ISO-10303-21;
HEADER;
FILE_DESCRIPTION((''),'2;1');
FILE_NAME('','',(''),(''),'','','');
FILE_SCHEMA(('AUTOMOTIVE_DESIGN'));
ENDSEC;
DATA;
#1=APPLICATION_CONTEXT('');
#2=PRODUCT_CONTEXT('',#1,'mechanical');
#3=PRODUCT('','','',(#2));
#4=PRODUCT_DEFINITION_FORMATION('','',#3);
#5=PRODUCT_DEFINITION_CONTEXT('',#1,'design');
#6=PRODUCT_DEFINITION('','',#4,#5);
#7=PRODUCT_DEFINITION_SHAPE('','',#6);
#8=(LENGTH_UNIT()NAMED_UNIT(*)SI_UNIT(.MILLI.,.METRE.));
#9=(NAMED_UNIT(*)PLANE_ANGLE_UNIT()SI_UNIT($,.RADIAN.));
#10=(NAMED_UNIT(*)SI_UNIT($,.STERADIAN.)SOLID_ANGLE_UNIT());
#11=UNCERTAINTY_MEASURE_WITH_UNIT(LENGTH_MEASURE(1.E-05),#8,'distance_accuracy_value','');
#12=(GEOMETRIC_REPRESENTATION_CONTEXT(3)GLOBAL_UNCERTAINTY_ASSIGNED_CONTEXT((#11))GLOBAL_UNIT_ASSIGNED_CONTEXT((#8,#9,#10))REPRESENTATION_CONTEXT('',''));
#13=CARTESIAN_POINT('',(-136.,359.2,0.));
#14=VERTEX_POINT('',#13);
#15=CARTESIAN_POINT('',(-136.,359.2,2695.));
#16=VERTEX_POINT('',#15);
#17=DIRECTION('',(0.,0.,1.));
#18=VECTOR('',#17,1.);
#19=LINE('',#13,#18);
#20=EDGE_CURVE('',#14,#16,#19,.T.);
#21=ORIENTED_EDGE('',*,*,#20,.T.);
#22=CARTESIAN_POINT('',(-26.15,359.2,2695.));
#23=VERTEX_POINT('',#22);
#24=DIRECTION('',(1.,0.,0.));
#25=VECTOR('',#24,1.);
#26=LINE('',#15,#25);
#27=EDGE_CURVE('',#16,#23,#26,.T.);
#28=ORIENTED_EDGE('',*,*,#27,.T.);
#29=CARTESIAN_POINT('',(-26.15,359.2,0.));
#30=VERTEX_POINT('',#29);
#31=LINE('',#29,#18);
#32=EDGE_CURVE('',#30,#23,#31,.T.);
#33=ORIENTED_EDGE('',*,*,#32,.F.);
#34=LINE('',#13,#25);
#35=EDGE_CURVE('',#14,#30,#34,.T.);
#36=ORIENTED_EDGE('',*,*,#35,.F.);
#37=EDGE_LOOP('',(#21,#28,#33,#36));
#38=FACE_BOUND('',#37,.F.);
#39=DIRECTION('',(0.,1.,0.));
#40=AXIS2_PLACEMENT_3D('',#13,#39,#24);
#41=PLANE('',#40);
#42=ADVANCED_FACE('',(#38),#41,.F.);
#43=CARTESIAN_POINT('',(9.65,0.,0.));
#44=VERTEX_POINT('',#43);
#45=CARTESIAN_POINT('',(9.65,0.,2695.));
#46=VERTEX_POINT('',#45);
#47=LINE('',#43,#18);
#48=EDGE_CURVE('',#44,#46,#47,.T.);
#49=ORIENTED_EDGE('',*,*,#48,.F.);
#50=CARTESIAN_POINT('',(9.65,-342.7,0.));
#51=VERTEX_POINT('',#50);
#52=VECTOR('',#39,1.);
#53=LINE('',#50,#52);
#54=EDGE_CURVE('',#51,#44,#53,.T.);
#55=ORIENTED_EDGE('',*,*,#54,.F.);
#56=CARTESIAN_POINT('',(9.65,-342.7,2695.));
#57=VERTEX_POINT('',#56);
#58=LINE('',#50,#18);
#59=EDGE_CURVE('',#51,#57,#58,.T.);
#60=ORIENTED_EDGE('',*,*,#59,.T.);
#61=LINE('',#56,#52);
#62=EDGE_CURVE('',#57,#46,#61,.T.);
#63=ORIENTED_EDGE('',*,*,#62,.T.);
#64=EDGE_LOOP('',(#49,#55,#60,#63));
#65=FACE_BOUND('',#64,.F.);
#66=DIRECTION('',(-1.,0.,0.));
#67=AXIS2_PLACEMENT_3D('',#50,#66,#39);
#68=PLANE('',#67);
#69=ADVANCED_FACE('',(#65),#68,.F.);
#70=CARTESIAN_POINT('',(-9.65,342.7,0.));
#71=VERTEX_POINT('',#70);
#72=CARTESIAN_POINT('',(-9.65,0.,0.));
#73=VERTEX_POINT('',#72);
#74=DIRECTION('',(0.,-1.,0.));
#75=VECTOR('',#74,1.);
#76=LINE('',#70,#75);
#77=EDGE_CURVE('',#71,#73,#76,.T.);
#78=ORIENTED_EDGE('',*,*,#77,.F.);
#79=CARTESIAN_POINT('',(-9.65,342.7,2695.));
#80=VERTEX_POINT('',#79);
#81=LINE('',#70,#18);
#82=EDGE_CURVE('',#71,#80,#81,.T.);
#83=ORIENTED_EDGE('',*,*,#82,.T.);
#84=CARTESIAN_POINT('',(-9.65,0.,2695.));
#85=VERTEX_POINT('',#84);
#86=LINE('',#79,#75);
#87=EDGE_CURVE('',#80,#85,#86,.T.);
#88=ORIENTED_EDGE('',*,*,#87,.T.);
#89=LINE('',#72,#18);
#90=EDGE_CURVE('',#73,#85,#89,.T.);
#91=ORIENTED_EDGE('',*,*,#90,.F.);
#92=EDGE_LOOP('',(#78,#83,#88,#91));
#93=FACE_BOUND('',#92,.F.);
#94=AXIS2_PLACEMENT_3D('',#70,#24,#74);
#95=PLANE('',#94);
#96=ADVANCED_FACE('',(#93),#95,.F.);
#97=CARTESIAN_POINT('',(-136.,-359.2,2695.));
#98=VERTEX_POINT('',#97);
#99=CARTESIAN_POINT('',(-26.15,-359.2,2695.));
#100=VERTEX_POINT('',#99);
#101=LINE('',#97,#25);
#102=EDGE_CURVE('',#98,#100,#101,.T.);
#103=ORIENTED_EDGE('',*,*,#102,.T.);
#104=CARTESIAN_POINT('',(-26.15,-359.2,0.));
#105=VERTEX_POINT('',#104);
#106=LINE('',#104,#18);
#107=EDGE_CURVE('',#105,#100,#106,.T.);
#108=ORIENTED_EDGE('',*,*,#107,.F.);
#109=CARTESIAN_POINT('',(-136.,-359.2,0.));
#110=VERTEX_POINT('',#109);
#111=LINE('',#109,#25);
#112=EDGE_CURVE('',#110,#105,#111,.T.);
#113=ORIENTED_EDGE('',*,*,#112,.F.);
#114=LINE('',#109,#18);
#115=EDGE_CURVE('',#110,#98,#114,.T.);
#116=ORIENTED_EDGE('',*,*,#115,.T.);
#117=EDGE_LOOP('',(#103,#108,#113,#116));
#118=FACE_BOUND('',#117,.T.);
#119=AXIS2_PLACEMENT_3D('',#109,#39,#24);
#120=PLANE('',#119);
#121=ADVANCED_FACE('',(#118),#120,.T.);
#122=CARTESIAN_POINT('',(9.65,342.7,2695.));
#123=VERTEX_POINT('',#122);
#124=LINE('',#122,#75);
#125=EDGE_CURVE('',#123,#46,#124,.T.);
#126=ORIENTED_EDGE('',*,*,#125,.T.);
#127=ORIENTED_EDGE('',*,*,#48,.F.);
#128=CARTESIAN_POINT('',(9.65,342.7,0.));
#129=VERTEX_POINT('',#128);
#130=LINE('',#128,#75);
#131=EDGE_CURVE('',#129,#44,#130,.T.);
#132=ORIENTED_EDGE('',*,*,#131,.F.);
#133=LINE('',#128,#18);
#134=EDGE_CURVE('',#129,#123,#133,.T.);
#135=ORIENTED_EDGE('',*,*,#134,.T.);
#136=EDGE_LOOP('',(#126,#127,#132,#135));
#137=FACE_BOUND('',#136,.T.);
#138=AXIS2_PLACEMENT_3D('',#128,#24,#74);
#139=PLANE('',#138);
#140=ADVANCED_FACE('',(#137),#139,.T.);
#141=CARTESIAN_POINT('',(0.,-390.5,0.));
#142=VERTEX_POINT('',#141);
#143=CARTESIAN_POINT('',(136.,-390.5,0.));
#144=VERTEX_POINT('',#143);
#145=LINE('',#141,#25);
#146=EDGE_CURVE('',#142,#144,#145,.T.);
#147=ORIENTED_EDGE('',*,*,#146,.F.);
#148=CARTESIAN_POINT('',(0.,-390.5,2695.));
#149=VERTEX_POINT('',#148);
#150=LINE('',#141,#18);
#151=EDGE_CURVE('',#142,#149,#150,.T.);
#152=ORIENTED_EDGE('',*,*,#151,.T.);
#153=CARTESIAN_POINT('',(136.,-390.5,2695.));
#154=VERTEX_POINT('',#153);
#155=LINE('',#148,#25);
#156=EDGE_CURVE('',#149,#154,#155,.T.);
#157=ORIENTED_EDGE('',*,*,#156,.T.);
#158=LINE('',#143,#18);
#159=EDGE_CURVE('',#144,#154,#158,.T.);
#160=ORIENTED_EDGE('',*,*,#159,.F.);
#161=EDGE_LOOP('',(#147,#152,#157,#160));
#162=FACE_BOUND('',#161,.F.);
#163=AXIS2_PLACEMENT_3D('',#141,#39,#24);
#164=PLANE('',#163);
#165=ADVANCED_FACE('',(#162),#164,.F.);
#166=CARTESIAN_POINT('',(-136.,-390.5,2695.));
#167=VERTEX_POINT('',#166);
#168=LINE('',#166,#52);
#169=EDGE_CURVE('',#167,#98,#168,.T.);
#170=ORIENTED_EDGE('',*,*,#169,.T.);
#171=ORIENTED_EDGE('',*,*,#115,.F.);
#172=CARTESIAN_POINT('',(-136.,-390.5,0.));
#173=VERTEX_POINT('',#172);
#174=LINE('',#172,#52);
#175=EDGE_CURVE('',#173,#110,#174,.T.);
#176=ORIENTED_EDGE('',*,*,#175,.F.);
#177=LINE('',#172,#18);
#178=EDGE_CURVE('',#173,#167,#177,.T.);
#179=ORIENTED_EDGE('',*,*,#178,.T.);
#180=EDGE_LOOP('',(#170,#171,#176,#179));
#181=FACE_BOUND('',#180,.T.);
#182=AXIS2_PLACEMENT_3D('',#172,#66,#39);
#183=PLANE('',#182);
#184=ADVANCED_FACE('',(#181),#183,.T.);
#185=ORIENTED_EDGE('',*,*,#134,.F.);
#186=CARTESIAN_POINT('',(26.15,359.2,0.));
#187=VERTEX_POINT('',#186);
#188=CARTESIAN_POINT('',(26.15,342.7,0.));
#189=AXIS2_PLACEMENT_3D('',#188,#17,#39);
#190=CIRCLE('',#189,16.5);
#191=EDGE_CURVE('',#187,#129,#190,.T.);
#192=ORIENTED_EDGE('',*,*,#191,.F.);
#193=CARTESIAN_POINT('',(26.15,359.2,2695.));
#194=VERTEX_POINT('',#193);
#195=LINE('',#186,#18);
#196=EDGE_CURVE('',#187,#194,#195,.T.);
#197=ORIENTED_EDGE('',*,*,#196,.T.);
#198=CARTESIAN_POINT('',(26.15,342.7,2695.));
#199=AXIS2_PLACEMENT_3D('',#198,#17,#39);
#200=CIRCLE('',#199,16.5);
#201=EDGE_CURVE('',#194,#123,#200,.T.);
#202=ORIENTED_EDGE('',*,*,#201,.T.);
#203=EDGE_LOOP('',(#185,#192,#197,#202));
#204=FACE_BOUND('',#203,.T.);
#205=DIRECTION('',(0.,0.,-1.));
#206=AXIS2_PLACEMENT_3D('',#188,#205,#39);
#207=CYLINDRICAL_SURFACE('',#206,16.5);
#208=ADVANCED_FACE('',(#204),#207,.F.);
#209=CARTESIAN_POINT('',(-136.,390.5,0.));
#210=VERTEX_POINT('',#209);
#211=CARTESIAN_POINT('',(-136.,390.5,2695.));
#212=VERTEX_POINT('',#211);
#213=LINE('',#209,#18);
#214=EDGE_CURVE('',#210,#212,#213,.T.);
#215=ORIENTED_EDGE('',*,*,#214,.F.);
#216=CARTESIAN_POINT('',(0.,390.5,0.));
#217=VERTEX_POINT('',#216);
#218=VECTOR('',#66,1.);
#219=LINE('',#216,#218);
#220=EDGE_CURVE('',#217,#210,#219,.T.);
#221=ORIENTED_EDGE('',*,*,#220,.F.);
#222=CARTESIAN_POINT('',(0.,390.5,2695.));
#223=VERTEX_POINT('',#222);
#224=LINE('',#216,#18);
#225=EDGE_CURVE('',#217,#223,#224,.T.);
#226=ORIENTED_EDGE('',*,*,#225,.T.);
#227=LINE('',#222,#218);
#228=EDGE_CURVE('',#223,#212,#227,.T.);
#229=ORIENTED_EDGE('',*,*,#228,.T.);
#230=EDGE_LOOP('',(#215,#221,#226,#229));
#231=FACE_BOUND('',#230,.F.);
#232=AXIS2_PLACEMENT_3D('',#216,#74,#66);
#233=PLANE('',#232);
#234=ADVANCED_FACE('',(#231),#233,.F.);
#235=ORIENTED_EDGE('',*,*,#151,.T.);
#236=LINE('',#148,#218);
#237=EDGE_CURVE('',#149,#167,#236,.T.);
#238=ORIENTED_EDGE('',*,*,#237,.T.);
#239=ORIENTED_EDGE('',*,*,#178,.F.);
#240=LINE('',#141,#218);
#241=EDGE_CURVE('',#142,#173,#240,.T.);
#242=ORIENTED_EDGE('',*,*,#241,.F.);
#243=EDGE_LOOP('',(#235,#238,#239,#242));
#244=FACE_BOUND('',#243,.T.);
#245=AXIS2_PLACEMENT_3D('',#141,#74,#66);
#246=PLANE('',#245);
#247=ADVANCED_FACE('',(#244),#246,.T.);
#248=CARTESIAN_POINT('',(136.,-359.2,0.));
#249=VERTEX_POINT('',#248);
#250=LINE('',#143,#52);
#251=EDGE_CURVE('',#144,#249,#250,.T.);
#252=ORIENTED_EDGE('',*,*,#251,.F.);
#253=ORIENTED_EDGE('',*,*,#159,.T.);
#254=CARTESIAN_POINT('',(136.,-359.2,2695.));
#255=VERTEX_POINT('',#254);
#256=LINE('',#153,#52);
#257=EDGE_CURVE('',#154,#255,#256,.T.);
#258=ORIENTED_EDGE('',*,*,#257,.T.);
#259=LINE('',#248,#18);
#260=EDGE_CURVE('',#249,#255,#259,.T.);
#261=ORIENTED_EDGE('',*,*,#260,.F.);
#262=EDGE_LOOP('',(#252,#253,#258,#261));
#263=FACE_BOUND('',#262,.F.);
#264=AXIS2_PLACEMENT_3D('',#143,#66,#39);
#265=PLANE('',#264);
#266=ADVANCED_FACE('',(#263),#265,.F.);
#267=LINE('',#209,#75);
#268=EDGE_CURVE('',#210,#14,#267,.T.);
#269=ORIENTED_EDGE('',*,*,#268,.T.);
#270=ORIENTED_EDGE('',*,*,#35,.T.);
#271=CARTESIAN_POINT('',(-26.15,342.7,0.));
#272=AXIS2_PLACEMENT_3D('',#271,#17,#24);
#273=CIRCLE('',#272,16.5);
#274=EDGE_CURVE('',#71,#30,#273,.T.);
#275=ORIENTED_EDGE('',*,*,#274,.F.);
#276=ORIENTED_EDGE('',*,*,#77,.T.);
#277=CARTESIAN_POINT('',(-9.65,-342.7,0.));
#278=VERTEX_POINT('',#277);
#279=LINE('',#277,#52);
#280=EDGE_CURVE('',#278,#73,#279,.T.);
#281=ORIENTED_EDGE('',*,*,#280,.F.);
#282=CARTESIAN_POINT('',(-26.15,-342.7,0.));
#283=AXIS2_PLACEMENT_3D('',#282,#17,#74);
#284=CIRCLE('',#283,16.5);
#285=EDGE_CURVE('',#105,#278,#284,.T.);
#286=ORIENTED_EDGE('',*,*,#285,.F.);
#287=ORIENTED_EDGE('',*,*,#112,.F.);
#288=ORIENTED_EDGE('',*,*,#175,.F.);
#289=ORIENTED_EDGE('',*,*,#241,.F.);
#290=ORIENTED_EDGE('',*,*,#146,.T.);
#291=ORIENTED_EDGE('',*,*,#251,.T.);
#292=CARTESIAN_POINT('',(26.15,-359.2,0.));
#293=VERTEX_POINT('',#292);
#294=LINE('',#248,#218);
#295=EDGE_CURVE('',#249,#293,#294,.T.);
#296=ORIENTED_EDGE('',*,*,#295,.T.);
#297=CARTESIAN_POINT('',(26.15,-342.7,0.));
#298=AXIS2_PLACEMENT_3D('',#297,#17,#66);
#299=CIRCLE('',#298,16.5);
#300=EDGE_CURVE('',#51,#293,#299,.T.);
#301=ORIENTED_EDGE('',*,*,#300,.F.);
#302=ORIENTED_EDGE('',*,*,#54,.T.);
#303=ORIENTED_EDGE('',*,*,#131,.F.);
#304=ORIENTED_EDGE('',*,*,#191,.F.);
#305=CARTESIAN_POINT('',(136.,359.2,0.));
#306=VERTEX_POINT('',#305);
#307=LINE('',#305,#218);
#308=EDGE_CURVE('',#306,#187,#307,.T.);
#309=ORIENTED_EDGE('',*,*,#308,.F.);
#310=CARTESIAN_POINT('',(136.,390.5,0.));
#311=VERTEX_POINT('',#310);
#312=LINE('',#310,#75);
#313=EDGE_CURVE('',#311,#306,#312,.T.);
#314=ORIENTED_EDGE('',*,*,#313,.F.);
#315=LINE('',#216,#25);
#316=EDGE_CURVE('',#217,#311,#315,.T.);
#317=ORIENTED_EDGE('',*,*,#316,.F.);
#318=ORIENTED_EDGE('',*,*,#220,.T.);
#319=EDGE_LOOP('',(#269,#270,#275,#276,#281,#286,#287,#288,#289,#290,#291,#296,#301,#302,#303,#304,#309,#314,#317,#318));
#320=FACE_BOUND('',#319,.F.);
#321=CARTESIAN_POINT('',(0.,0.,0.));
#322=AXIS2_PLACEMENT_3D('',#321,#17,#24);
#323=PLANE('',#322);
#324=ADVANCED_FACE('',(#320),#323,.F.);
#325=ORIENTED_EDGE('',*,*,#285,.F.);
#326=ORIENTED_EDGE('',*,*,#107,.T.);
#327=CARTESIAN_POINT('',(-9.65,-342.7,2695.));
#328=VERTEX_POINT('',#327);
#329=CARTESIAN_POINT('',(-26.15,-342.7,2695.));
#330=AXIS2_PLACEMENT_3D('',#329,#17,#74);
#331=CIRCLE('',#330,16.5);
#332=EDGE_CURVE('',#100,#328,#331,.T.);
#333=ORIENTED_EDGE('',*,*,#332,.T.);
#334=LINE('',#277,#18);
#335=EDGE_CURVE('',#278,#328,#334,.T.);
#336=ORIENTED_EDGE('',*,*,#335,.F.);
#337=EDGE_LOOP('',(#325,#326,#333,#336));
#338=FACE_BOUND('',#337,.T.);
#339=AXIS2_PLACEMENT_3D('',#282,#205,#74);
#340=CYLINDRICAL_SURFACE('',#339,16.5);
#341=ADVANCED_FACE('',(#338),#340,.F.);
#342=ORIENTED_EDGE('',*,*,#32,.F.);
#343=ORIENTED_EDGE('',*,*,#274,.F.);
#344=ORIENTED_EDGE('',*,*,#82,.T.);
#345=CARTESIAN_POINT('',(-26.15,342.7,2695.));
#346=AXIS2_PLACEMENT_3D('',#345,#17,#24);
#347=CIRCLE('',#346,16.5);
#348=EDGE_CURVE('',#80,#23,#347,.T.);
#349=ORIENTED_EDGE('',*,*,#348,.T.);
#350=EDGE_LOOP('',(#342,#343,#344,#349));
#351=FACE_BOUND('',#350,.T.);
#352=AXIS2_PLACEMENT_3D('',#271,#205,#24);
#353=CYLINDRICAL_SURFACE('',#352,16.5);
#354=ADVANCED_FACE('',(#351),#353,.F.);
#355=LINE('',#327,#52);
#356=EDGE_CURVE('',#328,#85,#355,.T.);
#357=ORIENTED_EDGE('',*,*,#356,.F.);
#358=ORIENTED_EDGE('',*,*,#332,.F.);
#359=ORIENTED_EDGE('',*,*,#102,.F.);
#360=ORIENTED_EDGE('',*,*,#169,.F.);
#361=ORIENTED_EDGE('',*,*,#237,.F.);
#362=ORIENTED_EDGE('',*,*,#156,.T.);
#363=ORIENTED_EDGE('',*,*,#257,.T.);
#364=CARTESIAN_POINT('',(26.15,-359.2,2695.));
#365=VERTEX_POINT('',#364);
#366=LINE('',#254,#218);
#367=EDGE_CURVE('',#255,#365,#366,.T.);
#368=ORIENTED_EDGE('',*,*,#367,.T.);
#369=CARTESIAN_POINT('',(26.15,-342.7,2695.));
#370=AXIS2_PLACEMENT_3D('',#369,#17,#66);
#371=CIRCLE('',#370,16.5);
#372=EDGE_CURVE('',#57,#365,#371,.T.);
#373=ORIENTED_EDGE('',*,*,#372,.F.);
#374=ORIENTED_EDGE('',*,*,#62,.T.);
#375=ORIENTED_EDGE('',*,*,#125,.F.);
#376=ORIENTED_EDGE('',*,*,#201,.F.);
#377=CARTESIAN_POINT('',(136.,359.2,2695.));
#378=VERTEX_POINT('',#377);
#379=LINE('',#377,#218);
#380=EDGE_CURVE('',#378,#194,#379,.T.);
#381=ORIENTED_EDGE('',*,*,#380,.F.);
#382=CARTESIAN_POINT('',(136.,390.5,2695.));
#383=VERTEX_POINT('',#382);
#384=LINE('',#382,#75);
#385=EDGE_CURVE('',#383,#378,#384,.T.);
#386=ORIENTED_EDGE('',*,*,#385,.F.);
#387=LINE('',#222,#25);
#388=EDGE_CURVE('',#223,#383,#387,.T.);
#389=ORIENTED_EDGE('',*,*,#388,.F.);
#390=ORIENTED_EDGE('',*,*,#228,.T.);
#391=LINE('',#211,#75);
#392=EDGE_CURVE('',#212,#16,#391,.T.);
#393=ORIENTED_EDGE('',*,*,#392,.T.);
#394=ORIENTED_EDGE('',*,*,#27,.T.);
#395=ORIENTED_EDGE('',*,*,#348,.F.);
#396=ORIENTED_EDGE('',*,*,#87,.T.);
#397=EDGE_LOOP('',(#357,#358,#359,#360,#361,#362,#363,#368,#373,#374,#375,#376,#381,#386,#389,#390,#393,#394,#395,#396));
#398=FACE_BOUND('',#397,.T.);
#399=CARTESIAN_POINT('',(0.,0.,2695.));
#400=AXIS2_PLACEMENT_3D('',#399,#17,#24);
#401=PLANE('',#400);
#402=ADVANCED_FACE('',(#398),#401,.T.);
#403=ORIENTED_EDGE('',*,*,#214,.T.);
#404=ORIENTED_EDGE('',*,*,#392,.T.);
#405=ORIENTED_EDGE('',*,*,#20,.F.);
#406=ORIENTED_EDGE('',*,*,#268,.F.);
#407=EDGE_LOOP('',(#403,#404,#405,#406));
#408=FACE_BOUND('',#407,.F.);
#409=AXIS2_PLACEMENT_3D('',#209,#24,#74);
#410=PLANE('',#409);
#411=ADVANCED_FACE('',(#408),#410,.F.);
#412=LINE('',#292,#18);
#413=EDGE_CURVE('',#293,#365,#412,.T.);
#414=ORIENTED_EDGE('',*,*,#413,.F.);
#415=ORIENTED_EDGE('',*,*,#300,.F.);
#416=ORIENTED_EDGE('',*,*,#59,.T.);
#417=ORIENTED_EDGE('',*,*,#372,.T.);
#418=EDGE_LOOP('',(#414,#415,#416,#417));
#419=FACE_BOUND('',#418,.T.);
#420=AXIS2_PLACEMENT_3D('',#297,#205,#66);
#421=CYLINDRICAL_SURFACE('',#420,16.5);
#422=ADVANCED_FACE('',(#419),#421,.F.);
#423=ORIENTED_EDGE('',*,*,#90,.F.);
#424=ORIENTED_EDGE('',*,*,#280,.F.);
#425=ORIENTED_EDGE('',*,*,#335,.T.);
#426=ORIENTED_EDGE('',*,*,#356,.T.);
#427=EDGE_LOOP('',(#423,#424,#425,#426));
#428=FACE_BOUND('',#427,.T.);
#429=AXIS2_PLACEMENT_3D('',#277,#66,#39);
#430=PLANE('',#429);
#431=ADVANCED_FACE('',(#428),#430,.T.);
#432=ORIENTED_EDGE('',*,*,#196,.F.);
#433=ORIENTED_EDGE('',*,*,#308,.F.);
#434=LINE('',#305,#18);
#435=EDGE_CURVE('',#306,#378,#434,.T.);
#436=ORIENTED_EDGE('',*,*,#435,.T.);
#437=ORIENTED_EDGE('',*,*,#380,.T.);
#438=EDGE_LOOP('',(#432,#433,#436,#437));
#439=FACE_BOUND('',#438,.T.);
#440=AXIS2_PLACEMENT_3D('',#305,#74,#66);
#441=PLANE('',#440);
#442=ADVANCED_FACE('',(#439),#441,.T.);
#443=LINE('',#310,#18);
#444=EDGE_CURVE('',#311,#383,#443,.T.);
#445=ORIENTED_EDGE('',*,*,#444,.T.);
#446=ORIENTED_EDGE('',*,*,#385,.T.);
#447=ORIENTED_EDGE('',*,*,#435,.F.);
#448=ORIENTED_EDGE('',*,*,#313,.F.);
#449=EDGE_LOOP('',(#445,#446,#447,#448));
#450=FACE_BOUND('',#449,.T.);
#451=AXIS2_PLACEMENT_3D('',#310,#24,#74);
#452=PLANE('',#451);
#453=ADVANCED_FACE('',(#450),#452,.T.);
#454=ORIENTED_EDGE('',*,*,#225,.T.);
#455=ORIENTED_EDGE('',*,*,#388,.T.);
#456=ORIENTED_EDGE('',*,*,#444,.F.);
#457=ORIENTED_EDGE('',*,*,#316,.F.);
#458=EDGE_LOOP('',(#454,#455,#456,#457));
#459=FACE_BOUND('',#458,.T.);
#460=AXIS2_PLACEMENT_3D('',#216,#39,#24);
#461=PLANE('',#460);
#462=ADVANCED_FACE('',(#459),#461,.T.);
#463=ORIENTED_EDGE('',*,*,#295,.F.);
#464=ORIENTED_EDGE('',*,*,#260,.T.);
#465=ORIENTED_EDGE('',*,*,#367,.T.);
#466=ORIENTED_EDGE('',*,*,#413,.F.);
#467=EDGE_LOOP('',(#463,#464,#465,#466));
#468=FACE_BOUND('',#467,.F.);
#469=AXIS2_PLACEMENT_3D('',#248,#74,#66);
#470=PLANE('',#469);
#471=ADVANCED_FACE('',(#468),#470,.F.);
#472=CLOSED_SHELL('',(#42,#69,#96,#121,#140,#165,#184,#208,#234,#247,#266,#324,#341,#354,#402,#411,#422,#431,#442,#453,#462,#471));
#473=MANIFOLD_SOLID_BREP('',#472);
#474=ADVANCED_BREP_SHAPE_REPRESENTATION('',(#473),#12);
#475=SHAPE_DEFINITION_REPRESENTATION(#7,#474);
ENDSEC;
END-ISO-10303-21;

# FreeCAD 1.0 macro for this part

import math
import FreeCAD as App
import Part
import Sketcher
Q = App.Units.Quantity

doc = App.newDocument("Part")
body = doc.addObject("PartDesign::Body", "Body")

# Sketch on XY plane
sketch1 = body.newObject("Sketcher::SketchObject", "Sketch")
sketch1.AttachmentSupport = (doc.getObject("XY_Plane"), [""])
sketch1.MapMode = "FlatFace"
sketch1.addGeometry(Part.LineSegment(App.Vector(-136, -359.2, 0), App.Vector(-136, -390.5, 0)), False)
sketch1.addGeometry(Part.LineSegment(App.Vector(-136, -390.5, 0), App.Vector(136, -390.5, 0)), False)
sketch1.addGeometry(Part.LineSegment(App.Vector(136, -390.5, 0), App.Vector(136, -359.2, 0)), False)
sketch1.addGeometry(Part.LineSegment(App.Vector(136, -359.2, 0), App.Vector(26.15, -359.2, 0)), False)
sketch1.addGeometry(Part.ArcOfCircle(Part.Circle(App.Vector(26.15, -342.7, 0), App.Vector(0, 0, 1), 16.5), math.radians(180), math.radians(270)), False)
sketch1.addGeometry(Part.LineSegment(App.Vector(9.65, -342.7, 0), App.Vector(9.65, 342.7, 0)), False)
sketch1.addGeometry(Part.ArcOfCircle(Part.Circle(App.Vector(26.15, 342.7, 0), App.Vector(0, 0, 1), 16.5), math.radians(90), math.radians(180)), False)
sketch1.addGeometry(Part.LineSegment(App.Vector(26.15, 359.2, 0), App.Vector(136, 359.2, 0)), False)
sketch1.addGeometry(Part.LineSegment(App.Vector(136, 359.2, 0), App.Vector(136, 390.5, 0)), False)
sketch1.addGeometry(Part.LineSegment(App.Vector(136, 390.5, 0), App.Vector(-136, 390.5, 0)), False)
sketch1.addGeometry(Part.LineSegment(App.Vector(-136, 390.5, 0), App.Vector(-136, 359.2, 0)), False)
sketch1.addGeometry(Part.LineSegment(App.Vector(-136, 359.2, 0), App.Vector(-26.15, 359.2, 0)), False)
sketch1.addGeometry(Part.ArcOfCircle(Part.Circle(App.Vector(-26.15, 342.7, 0), App.Vector(0, 0, 1), 16.5), math.radians(0), math.radians(90)), False)
sketch1.addGeometry(Part.LineSegment(App.Vector(-9.65, 342.7, 0), App.Vector(-9.65, -342.7, 0)), False)
sketch1.addGeometry(Part.ArcOfCircle(Part.Circle(App.Vector(-26.15, -342.7, 0), App.Vector(0, 0, 1), 16.5), math.radians(-90), math.radians(0)), False)
sketch1.addGeometry(Part.LineSegment(App.Vector(-26.15, -359.2, 0), App.Vector(-136, -359.2, 0)), False)
sketch1.addConstraint(Sketcher.Constraint("Coincident", 0, 2, 1, 1))
sketch1.addConstraint(Sketcher.Constraint("Coincident", 1, 2, 2, 1))
sketch1.addConstraint(Sketcher.Constraint("Coincident", 2, 2, 3, 1))
sketch1.addConstraint(Sketcher.Constraint("Tangent", 3, 2, 4, 2))
sketch1.addConstraint(Sketcher.Constraint("Tangent", 4, 1, 5, 1))
sketch1.addConstraint(Sketcher.Constraint("Tangent", 5, 2, 6, 2))
sketch1.addConstraint(Sketcher.Constraint("Tangent", 6, 1, 7, 1))
sketch1.addConstraint(Sketcher.Constraint("Coincident", 7, 2, 8, 1))
sketch1.addConstraint(Sketcher.Constraint("Coincident", 8, 2, 9, 1))
sketch1.addConstraint(Sketcher.Constraint("Coincident", 9, 2, 10, 1))
sketch1.addConstraint(Sketcher.Constraint("Coincident", 10, 2, 11, 1))
sketch1.addConstraint(Sketcher.Constraint("Tangent", 11, 2, 12, 2))
sketch1.addConstraint(Sketcher.Constraint("Tangent", 12, 1, 13, 1))
sketch1.addConstraint(Sketcher.Constraint("Tangent", 13, 2, 14, 2))
sketch1.addConstraint(Sketcher.Constraint("Tangent", 14, 1, 15, 1))
sketch1.addConstraint(Sketcher.Constraint("Coincident", 15, 2, 0, 1))
sketch1.addConstraint(Sketcher.Constraint("Vertical", 0))
sketch1.addConstraint(Sketcher.Constraint("Horizontal", 1))
sketch1.addConstraint(Sketcher.Constraint("Vertical", 2))
sketch1.addConstraint(Sketcher.Constraint("Horizontal", 3))
sketch1.addConstraint(Sketcher.Constraint("Vertical", 5))
sketch1.addConstraint(Sketcher.Constraint("Horizontal", 7))
sketch1.addConstraint(Sketcher.Constraint("Vertical", 8))
sketch1.addConstraint(Sketcher.Constraint("Horizontal", 9))
sketch1.addConstraint(Sketcher.Constraint("Vertical", 10))
sketch1.addConstraint(Sketcher.Constraint("Horizontal", 11))
sketch1.addConstraint(Sketcher.Constraint("Vertical", 13))
sketch1.addConstraint(Sketcher.Constraint("Horizontal", 15))
sketch1.addConstraint(Sketcher.Constraint("Equal", 4, 6))
sketch1.addConstraint(Sketcher.Constraint("Equal", 6, 12))
sketch1.addConstraint(Sketcher.Constraint("Equal", 12, 14))
sketch1.addConstraint(Sketcher.Constraint("Symmetric", 4, 3, 12, 3, -1, 1))
sketch1.addConstraint(Sketcher.Constraint("Symmetric", 0, 2, 8, 2, -1, 1))
sketch1.addConstraint(Sketcher.Constraint("Symmetric", 7, 2, 10, 2, -2))
sketch1.addConstraint(Sketcher.Constraint("Symmetric", 2, 2, 15, 2, -2))
sketch1.addConstraint(Sketcher.Constraint("Radius", 4, Q("16.5 mm")))
sketch1.addConstraint(Sketcher.Constraint("DistanceY", 0, 2, 0, 1, Q("31.3 mm")))
sketch1.addConstraint(Sketcher.Constraint("DistanceX", 0, 2, -1, 1, Q("136 mm")))
sketch1.addConstraint(Sketcher.Constraint("DistanceY", 0, 2, -1, 1, Q("390.5 mm")))
sketch1.addConstraint(Sketcher.Constraint("DistanceX", -1, 1, 4, 1, Q("9.65 mm")))
pad1 = body.newObject("PartDesign::Pad", "Pad")
pad1.Profile = sketch1
pad1.Length = 2695

doc.recompute()
